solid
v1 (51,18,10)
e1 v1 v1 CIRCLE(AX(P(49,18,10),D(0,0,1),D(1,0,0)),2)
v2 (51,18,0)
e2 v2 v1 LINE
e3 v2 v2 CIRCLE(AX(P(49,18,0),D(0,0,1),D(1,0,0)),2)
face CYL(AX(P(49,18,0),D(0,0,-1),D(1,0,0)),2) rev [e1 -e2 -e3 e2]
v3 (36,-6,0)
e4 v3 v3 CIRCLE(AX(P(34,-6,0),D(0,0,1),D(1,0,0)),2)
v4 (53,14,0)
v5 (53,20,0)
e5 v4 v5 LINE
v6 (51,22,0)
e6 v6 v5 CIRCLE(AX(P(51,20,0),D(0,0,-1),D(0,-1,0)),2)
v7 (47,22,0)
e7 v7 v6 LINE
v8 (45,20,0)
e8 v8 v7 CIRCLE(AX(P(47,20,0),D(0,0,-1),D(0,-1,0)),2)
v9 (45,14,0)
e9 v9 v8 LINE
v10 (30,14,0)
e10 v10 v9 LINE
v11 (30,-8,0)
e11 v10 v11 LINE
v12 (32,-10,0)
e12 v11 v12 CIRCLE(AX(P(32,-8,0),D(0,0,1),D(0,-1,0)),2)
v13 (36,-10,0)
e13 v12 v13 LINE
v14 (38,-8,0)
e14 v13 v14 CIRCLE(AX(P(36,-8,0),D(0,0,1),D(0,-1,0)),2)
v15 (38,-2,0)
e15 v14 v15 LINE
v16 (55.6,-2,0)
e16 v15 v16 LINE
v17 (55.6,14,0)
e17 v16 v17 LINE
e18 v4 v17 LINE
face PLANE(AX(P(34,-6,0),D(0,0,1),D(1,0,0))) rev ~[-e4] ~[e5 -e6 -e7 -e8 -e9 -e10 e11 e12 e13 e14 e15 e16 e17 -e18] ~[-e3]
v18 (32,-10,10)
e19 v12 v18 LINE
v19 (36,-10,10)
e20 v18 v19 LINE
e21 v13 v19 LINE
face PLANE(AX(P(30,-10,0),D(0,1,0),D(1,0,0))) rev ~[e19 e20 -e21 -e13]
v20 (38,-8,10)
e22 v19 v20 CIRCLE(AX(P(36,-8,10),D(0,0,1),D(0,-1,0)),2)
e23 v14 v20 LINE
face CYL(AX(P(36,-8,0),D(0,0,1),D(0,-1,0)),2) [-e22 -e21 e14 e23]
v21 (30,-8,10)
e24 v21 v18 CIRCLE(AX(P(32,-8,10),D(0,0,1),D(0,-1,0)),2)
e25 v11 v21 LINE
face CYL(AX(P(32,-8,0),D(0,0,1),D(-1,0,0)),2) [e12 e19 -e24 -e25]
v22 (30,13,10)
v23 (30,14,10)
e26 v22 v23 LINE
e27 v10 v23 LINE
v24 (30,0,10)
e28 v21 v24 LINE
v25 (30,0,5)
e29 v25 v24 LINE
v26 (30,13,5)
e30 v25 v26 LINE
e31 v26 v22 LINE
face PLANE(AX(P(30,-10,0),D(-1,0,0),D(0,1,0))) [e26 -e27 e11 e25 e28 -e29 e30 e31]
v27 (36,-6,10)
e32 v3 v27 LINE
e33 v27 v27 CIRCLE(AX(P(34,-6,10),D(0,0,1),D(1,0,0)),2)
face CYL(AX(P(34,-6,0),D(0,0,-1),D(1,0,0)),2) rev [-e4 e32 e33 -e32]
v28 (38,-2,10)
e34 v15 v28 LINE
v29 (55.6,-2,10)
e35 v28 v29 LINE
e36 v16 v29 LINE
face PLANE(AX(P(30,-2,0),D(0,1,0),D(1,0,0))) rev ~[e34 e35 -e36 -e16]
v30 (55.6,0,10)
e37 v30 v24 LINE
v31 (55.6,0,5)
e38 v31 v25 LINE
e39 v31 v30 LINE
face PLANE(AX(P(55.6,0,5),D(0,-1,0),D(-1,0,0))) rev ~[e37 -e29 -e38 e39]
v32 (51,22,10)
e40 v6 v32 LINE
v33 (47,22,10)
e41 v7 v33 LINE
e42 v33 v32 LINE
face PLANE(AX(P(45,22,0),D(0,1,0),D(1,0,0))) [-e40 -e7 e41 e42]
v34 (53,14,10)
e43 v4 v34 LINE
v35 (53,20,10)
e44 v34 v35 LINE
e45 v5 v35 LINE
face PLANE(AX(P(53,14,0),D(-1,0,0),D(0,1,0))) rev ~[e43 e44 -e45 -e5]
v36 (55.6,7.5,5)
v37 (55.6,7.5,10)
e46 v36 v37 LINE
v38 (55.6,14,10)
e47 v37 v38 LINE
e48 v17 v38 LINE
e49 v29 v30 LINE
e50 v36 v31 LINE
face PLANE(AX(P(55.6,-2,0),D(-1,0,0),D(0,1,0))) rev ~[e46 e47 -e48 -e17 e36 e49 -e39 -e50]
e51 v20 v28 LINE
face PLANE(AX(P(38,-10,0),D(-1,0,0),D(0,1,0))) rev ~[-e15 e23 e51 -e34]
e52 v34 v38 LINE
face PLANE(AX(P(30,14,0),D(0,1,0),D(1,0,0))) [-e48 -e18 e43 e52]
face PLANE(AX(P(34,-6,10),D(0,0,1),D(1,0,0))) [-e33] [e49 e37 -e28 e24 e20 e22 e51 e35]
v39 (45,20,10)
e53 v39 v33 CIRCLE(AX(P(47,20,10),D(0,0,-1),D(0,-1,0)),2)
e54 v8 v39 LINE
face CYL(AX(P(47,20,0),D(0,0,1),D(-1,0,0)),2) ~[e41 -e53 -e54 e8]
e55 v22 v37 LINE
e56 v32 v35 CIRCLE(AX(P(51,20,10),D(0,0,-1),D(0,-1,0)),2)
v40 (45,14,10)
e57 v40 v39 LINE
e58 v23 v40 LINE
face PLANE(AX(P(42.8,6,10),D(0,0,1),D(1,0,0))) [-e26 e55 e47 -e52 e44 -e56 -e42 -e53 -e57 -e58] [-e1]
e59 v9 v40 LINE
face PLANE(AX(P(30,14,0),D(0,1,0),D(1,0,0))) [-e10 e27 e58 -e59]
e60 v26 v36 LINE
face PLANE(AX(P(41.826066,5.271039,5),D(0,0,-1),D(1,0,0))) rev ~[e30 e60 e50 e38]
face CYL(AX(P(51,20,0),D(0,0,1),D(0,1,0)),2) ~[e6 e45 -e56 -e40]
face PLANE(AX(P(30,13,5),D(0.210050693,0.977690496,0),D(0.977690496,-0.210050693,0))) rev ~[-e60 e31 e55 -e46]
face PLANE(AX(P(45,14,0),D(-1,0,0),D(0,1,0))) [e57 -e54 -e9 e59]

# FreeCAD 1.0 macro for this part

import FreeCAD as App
import Part
import Sketcher

V = App.Vector
Q = App.Units.Quantity


def edges_at(feature, points):
    """Names of the edges that pass closest to the given points."""
    edges = feature.Shape.Edges
    near = lambda p: min(range(len(edges)), key=lambda i: edges[i].distToShape(Part.Vertex(*p))[0])
    return sorted({f"Edge{near(p) + 1}" for p in points})

doc = App.newDocument("Part")
body = doc.addObject("PartDesign::Body", "Body")

# Sketch on XY plane
sketch1 = doc.addObject("Sketcher::SketchObject", "Sketch")
body.addObject(sketch1)
sketch1.AttachmentSupport = (doc.XY_Plane, [""])
sketch1.MapMode = "FlatFace"
sketch1.addGeometry(Part.Circle(V(4, 4, 0), V(0, 0, 1), 2), False)
sketch1.addConstraint(Sketcher.Constraint("Diameter", 0, Q("4 mm")))
sketch1.addConstraint(Sketcher.Constraint("DistanceX", -1, 1, 0, 3, Q("4 mm")))
sketch1.addConstraint(Sketcher.Constraint("DistanceY", -1, 1, 0, 3, Q("4 mm")))
pad1 = doc.addObject("PartDesign::Pad", "Pad")
body.addObject(pad1)
pad1.Profile = sketch1
pad1.Length = 10
body2 = doc.addObject("PartDesign::Body", "Body001")

# Sketch on XY plane
sketch2 = doc.addObject("Sketcher::SketchObject", "Sketch001")
body2.addObject(sketch2)
sketch2.AttachmentSupport = (doc.getObject("XY_Plane001"), [""])
sketch2.MapMode = "FlatFace"
sketch2.addGeometry(Part.LineSegment(V(0, 8, 0), V(0, 0, 0)), False)
sketch2.addGeometry(Part.LineSegment(V(0, 0, 0), V(8, 0, 0)), False)
sketch2.addGeometry(Part.LineSegment(V(8, 0, 0), V(8, 8, 0)), False)
sketch2.addGeometry(Part.LineSegment(V(8, 8, 0), V(0, 8, 0)), False)
sketch2.addConstraint(Sketcher.Constraint("Coincident", 0, 2, 1, 1))
sketch2.addConstraint(Sketcher.Constraint("Coincident", 1, 2, 2, 1))
sketch2.addConstraint(Sketcher.Constraint("Coincident", 2, 2, 3, 1))
sketch2.addConstraint(Sketcher.Constraint("Coincident", 3, 2, 0, 1))
sketch2.addConstraint(Sketcher.Constraint("Vertical", 0))
sketch2.addConstraint(Sketcher.Constraint("Horizontal", 1))
sketch2.addConstraint(Sketcher.Constraint("Vertical", 2))
sketch2.addConstraint(Sketcher.Constraint("Horizontal", 3))
sketch2.addConstraint(Sketcher.Constraint("Coincident", 0, 2, -1, 1))
sketch2.addConstraint(Sketcher.Constraint("Equal", 3, 0))
sketch2.addConstraint(Sketcher.Constraint("DistanceX", 1, 1, 1, 2, Q("8 mm")))
pad2 = doc.addObject("PartDesign::Pad", "Pad001")
body2.addObject(pad2)
pad2.Profile = sketch2
pad2.Length = 10
doc.recompute()

boolean = doc.addObject("PartDesign::Boolean", "Boolean")
body2.addObject(boolean)
boolean.Type = "Cut"
boolean.addObjects([body])
body3 = doc.addObject("PartDesign::Body", "Body002")
doc.recompute()

body2.Placement = App.Placement(V(30, -10, 0), App.Rotation(V(0, 0, 1), 0))
boolean2 = doc.addObject("PartDesign::Boolean", "Boolean001")
body3.addObject(boolean2)
boolean2.Type = "Fuse"
boolean2.addObjects([body2])
doc.recompute()

fillet = doc.addObject("PartDesign::Fillet", "Fillet")
body3.addObject(fillet)
fillet.Base = (boolean2, edges_at(boolean2, [(30, -10, 5), (38, -10, 5)]))
fillet.Radius = 2
body4 = doc.addObject("PartDesign::Body", "Body003")

# Sketch on XY plane
sketch3 = doc.addObject("Sketcher::SketchObject", "Sketch002")
body4.addObject(sketch3)
sketch3.AttachmentSupport = (doc.getObject("XY_Plane003"), [""])
sketch3.MapMode = "FlatFace"
sketch3.addGeometry(Part.Circle(V(4, 4, 0), V(0, 0, 1), 2), False)
sketch3.addConstraint(Sketcher.Constraint("Diameter", 0, Q("4 mm")))
sketch3.addConstraint(Sketcher.Constraint("DistanceX", -1, 1, 0, 3, Q("4 mm")))
sketch3.addConstraint(Sketcher.Constraint("DistanceY", -1, 1, 0, 3, Q("4 mm")))
pad3 = doc.addObject("PartDesign::Pad", "Pad002")
body4.addObject(pad3)
pad3.Profile = sketch3
pad3.Length = 10
body5 = doc.addObject("PartDesign::Body", "Body004")

# Sketch on XY plane
sketch4 = doc.addObject("Sketcher::SketchObject", "Sketch003")
body5.addObject(sketch4)
sketch4.AttachmentSupport = (doc.getObject("XY_Plane004"), [""])
sketch4.MapMode = "FlatFace"
sketch4.addGeometry(Part.LineSegment(V(0, 8, 0), V(0, 0, 0)), False)
sketch4.addGeometry(Part.LineSegment(V(0, 0, 0), V(8, 0, 0)), False)
sketch4.addGeometry(Part.LineSegment(V(8, 0, 0), V(8, 8, 0)), False)
sketch4.addGeometry(Part.LineSegment(V(8, 8, 0), V(0, 8, 0)), False)
sketch4.addConstraint(Sketcher.Constraint("Coincident", 0, 2, 1, 1))
sketch4.addConstraint(Sketcher.Constraint("Coincident", 1, 2, 2, 1))
sketch4.addConstraint(Sketcher.Constraint("Coincident", 2, 2, 3, 1))
sketch4.addConstraint(Sketcher.Constraint("Coincident", 3, 2, 0, 1))
sketch4.addConstraint(Sketcher.Constraint("Vertical", 0))
sketch4.addConstraint(Sketcher.Constraint("Horizontal", 1))
sketch4.addConstraint(Sketcher.Constraint("Vertical", 2))
sketch4.addConstraint(Sketcher.Constraint("Horizontal", 3))
sketch4.addConstraint(Sketcher.Constraint("Coincident", 0, 2, -1, 1))
sketch4.addConstraint(Sketcher.Constraint("Equal", 3, 0))
sketch4.addConstraint(Sketcher.Constraint("DistanceX", 1, 1, 1, 2, Q("8 mm")))
pad4 = doc.addObject("PartDesign::Pad", "Pad003")
body5.addObject(pad4)
pad4.Profile = sketch4
pad4.Length = 10
doc.recompute()

boolean3 = doc.addObject("PartDesign::Boolean", "Boolean002")
body5.addObject(boolean3)
boolean3.Type = "Cut"
boolean3.addObjects([body4])
body6 = doc.addObject("PartDesign::Body", "Body005")
doc.recompute()

body5.Placement = App.Placement(V(45, 14, 0), App.Rotation(V(0, 0, 1), 0))
boolean4 = doc.addObject("PartDesign::Boolean", "Boolean003")
body6.addObject(boolean4)
boolean4.Type = "Fuse"
boolean4.addObjects([body5])
doc.recompute()

fillet2 = doc.addObject("PartDesign::Fillet", "Fillet001")
body6.addObject(fillet2)
fillet2.Base = (boolean4, edges_at(boolean4, [(45, 22, 5), (53, 22, 5)]))
fillet2.Radius = 2
body7 = doc.addObject("PartDesign::Body", "Body006")

# Sketch on XY plane
sketch5 = doc.addObject("Sketcher::SketchObject", "Sketch004")
body7.addObject(sketch5)
sketch5.AttachmentSupport = (doc.getObject("XY_Plane006"), [""])
sketch5.MapMode = "FlatFace"
sketch5.addGeometry(Part.LineSegment(V(30, 13, 0), V(30, 0, 0)), False)
sketch5.addGeometry(Part.LineSegment(V(30, 0, 0), V(56, 0, 0)), False)
sketch5.addGeometry(Part.LineSegment(V(56, 0, 0), V(56, 8, 0)), False)
sketch5.addGeometry(Part.LineSegment(V(56, 8, 0), V(30, 13, 0)), False)
sketch5.addConstraint(Sketcher.Constraint("Coincident", 0, 2, 1, 1))
sketch5.addConstraint(Sketcher.Constraint("Coincident", 1, 2, 2, 1))
sketch5.addConstraint(Sketcher.Constraint("Coincident", 2, 2, 3, 1))
sketch5.addConstraint(Sketcher.Constraint("Coincident", 3, 2, 0, 1))
sketch5.addConstraint(Sketcher.Constraint("Vertical", 0))
sketch5.addConstraint(Sketcher.Constraint("Horizontal", 1))
sketch5.addConstraint(Sketcher.Constraint("Vertical", 2))
sketch5.addConstraint(Sketcher.Constraint("PointOnObject", 0, 2, -1))
sketch5.addConstraint(Sketcher.Constraint("DistanceY", 0, 2, 0, 1, Q("13 mm")))
sketch5.addConstraint(Sketcher.Constraint("DistanceX", 1, 1, 1, 2, Q("25.6 mm")))
sketch5.addConstraint(Sketcher.Constraint("DistanceY", 2, 1, 2, 2, Q("7.5 mm")))
sketch5.addConstraint(Sketcher.Constraint("DistanceX", -1, 1, 0, 2, Q("30 mm")))
pad5 = doc.addObject("PartDesign::Pad", "Pad004")
body7.addObject(pad5)
pad5.Profile = sketch5
pad5.Length = 5
body8 = doc.addObject("PartDesign::Body", "Body007")
doc.recompute()

body7.Placement = App.Placement(V(0, 0, 5), App.Rotation(V(0, 0, 1), 0))
boolean5 = doc.addObject("PartDesign::Boolean", "Boolean004")
body8.addObject(boolean5)
boolean5.Type = "Fuse"
boolean5.addObjects([body7])
body9 = doc.addObject("PartDesign::Body", "Body008")

# Sketch on XY plane
sketch6 = doc.addObject("Sketcher::SketchObject", "Sketch005")
body9.addObject(sketch6)
sketch6.AttachmentSupport = (doc.getObject("XY_Plane008"), [""])
sketch6.MapMode = "FlatFace"
sketch6.addGeometry(Part.LineSegment(V(30, 14, 0), V(30, -2, 0)), False)
sketch6.addGeometry(Part.LineSegment(V(30, -2, 0), V(56, -2, 0)), False)
sketch6.addGeometry(Part.LineSegment(V(56, -2, 0), V(56, 14, 0)), False)
sketch6.addGeometry(Part.LineSegment(V(56, 14, 0), V(30, 14, 0)), False)
sketch6.addConstraint(Sketcher.Constraint("Coincident", 0, 2, 1, 1))
sketch6.addConstraint(Sketcher.Constraint("Coincident", 1, 2, 2, 1))
sketch6.addConstraint(Sketcher.Constraint("Coincident", 2, 2, 3, 1))
sketch6.addConstraint(Sketcher.Constraint("Coincident", 3, 2, 0, 1))
sketch6.addConstraint(Sketcher.Constraint("Vertical", 0))
sketch6.addConstraint(Sketcher.Constraint("Horizontal", 1))
sketch6.addConstraint(Sketcher.Constraint("Vertical", 2))
sketch6.addConstraint(Sketcher.Constraint("Horizontal", 3))
sketch6.addConstraint(Sketcher.Constraint("DistanceY", 0, 2, 0, 1, Q("16 mm")))
sketch6.addConstraint(Sketcher.Constraint("DistanceX", 1, 1, 1, 2, Q("25.6 mm")))
sketch6.addConstraint(Sketcher.Constraint("DistanceX", -1, 1, 0, 2, Q("30 mm")))
sketch6.addConstraint(Sketcher.Constraint("DistanceY", 0, 2, -1, 1, Q("2 mm")))
pad6 = doc.addObject("PartDesign::Pad", "Pad005")
body9.addObject(pad6)
pad6.Profile = sketch6
pad6.Length = 10
doc.recompute()

boolean6 = doc.addObject("PartDesign::Boolean", "Boolean005")
body9.addObject(boolean6)
boolean6.Type = "Cut"
boolean6.addObjects([body8])
doc.recompute()

boolean7 = doc.addObject("PartDesign::Boolean", "Boolean006")
body9.addObject(boolean7)
boolean7.Type = "Fuse"
boolean7.addObjects([body3])
doc.recompute()

boolean8 = doc.addObject("PartDesign::Boolean", "Boolean007")
body9.addObject(boolean8)
boolean8.Type = "Fuse"
boolean8.addObjects([body6])

doc.recompute()
